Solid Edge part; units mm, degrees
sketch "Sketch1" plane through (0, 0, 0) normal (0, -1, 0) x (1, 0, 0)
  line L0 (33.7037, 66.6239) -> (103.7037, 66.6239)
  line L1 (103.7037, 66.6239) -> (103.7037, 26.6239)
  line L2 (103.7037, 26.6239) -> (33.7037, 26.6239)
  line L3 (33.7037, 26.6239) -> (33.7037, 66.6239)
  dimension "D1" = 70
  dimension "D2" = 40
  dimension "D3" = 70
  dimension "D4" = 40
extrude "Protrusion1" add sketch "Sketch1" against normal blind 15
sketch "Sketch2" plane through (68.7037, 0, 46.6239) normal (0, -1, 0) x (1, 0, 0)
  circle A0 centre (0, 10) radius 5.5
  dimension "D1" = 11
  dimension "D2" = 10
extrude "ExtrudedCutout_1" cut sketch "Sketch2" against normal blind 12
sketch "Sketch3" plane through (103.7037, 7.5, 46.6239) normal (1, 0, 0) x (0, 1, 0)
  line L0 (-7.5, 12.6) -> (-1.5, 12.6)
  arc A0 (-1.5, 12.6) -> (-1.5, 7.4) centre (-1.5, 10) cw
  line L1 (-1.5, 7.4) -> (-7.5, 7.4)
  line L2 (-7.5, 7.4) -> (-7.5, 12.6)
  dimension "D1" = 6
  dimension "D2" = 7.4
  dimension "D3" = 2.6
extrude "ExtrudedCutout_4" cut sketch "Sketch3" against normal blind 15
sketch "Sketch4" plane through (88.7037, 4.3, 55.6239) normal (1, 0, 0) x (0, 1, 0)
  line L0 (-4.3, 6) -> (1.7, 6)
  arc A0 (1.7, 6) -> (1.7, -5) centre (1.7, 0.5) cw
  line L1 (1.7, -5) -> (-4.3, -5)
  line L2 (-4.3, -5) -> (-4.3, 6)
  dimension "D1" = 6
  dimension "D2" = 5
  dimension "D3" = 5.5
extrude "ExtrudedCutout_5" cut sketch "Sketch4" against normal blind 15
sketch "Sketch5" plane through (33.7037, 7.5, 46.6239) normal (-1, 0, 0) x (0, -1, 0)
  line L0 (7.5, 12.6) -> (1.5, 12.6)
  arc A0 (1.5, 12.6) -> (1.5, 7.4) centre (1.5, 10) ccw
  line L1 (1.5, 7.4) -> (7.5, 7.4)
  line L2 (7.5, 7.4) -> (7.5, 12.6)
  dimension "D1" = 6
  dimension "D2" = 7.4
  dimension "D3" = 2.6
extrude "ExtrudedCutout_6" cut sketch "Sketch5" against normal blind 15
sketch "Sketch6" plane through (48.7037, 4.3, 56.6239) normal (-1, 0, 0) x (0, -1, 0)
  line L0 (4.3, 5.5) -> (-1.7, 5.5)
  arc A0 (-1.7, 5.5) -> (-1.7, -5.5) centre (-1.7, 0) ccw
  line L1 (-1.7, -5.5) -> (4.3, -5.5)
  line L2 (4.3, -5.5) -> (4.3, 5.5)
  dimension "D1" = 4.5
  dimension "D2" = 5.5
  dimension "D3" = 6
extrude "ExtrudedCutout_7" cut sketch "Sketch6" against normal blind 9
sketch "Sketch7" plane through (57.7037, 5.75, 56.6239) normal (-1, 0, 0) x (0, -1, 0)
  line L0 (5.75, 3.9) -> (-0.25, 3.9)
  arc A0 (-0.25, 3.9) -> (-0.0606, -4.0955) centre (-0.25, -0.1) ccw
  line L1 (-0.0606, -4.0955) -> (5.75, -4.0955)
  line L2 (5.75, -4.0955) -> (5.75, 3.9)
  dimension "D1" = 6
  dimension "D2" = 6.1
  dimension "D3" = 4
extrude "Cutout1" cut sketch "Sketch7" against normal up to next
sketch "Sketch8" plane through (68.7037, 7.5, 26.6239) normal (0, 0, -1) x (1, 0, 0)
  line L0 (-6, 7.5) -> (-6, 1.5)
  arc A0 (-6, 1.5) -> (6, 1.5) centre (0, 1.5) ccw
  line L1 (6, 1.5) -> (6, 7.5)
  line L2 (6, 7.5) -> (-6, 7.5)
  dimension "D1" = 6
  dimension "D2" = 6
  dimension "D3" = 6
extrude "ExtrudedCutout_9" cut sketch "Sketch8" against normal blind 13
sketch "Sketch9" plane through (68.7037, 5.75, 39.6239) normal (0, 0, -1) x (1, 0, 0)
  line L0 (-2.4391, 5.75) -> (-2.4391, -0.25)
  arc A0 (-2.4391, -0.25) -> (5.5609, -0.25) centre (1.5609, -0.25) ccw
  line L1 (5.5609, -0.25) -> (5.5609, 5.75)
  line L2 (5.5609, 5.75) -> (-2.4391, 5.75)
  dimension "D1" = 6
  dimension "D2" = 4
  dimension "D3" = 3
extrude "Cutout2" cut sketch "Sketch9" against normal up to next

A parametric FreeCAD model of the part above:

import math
import FreeCAD as App
import Part
import Sketcher
from FreeCAD import Vector
Q = App.Units.Quantity

doc = App.newDocument("Part")
body = doc.addObject("PartDesign::Body", "Body")

# Sketch on XZ plane
sketch1 = body.newObject("Sketcher::SketchObject", "Sketch")
sketch1.AttachmentSupport = (doc.getObject("XZ_Plane"), [""])
sketch1.MapMode = "FlatFace"
sketch1.addGeometry([
    Part.LineSegment(Vector(104, 67, 0), Vector(34, 67, 0)),
    Part.LineSegment(Vector(34, 67, 0), Vector(34, 27, 0)),
    Part.LineSegment(Vector(34, 27, 0), Vector(104, 27, 0)),
    Part.LineSegment(Vector(104, 27, 0), Vector(104, 67, 0)),
], False)
sketch1.addConstraint([
    Sketcher.Constraint("Coincident", 0, 2, 1, 1),
    Sketcher.Constraint("Coincident", 1, 2, 2, 1),
    Sketcher.Constraint("Coincident", 2, 2, 3, 1),
    Sketcher.Constraint("Coincident", 3, 2, 0, 1),
    Sketcher.Constraint("Horizontal", 0),
    Sketcher.Constraint("Vertical", 1),
    Sketcher.Constraint("Horizontal", 2),
    Sketcher.Constraint("Vertical", 3),
    Sketcher.Constraint("DistanceX", 0, 2, 0, 1, Q("70 mm")),
    Sketcher.Constraint("DistanceY", 1, 2, 1, 1, Q("40 mm")),
    Sketcher.Constraint("DistanceX", -1, 1, 0, 2, Q("33.7037 mm")),
    Sketcher.Constraint("DistanceY", -1, 1, 0, 2, Q("66.624 mm")),
])
pad1 = body.newObject("PartDesign::Pad", "Pad")
pad1.Profile = sketch1
pad1.Length = 15
pad1.Reversed = True

# Sketch on XZ plane
sketch2 = body.newObject("Sketcher::SketchObject", "Sketch001")
sketch2.AttachmentSupport = (doc.getObject("XZ_Plane"), [""])
sketch2.MapMode = "FlatFace"
sketch2.addGeometry(Part.Circle(Vector(69, 57, 0), Vector(0, 0, 1), 6), False)
sketch2.addConstraint([
    Sketcher.Constraint("Diameter", 0, Q("11 mm")),
    Sketcher.Constraint("DistanceY", -1, 1, 0, 3, Q("56.624 mm")),
    Sketcher.Constraint("DistanceX", -1, 1, 0, 3, Q("68.7037 mm")),
])
pocket1 = body.newObject("PartDesign::Pocket", "Pocket")
pocket1.Profile = sketch2
pocket1.Length = 12

# Sketch on YZ plane
sketch3 = body.newObject("Sketcher::SketchObject", "Sketch002")
sketch3.AttachmentSupport = (doc.getObject("YZ_Plane"), [""])
sketch3.MapMode = "FlatFace"
sketch3.AttachmentOffset = App.Placement(Vector(0, 0, 103.7037), App.Rotation())
sketch3.addGeometry([
    Part.LineSegment(Vector(6, 59.2, 0), Vector(0, 59.2, 0)),
    Part.LineSegment(Vector(0, 59.2, 0), Vector(0, 54, 0)),
    Part.LineSegment(Vector(0, 54, 0), Vector(6, 54, 0)),
    Part.ArcOfCircle(Part.Circle(Vector(6, 56.6, 0), Vector(0, 0, 1), 2.6), math.radians(-90), math.radians(90)),
], False)
sketch3.addConstraint([
    Sketcher.Constraint("Coincident", 0, 2, 1, 1),
    Sketcher.Constraint("Coincident", 1, 2, 2, 1),
    Sketcher.Constraint("Tangent", 2, 2, 3, 1),
    Sketcher.Constraint("Tangent", 3, 2, 0, 1),
    Sketcher.Constraint("Horizontal", 0),
    Sketcher.Constraint("Vertical", 1),
    Sketcher.Constraint("Horizontal", 2),
    Sketcher.Constraint("PointOnObject", 0, 2, -2),
    Sketcher.Constraint("Radius", 3, Q("2.6 mm")),
    Sketcher.Constraint("DistanceX", 0, 2, 0, 1, Q("6 mm")),
    Sketcher.Constraint("DistanceY", -1, 1, 3, 3, Q("56.624 mm")),
])
pocket2 = body.newObject("PartDesign::Pocket", "Pocket001")
pocket2.Profile = sketch3
pocket2.Length = 15

# Sketch on YZ plane
sketch4 = body.newObject("Sketcher::SketchObject", "Sketch003")
sketch4.AttachmentSupport = (doc.getObject("YZ_Plane"), [""])
sketch4.MapMode = "FlatFace"
sketch4.AttachmentOffset = App.Placement(Vector(0, 0, 88.7037), App.Rotation())
sketch4.addGeometry([
    Part.LineSegment(Vector(6, 62, 0), Vector(0, 62, 0)),
    Part.LineSegment(Vector(0, 62, 0), Vector(0, 51, 0)),
    Part.LineSegment(Vector(0, 51, 0), Vector(6, 51, 0)),
    Part.ArcOfCircle(Part.Circle(Vector(6, 56, 0), Vector(0, 0, 1), 6), math.radians(-90), math.radians(90)),
], False)
sketch4.addConstraint([
    Sketcher.Constraint("Coincident", 0, 2, 1, 1),
    Sketcher.Constraint("Coincident", 1, 2, 2, 1),
    Sketcher.Constraint("Tangent", 2, 2, 3, 1),
    Sketcher.Constraint("Tangent", 3, 2, 0, 1),
    Sketcher.Constraint("Horizontal", 0),
    Sketcher.Constraint("Vertical", 1),
    Sketcher.Constraint("Horizontal", 2),
    Sketcher.Constraint("PointOnObject", 0, 2, -2),
    Sketcher.Constraint("Radius", 3, Q("5.5 mm")),
    Sketcher.Constraint("DistanceX", 0, 2, 0, 1, Q("6 mm")),
    Sketcher.Constraint("DistanceY", -1, 1, 3, 3, Q("56.124 mm")),
])
pocket3 = body.newObject("PartDesign::Pocket", "Pocket002")
pocket3.Profile = sketch4
pocket3.Length = 15

# Sketch on YZ plane
sketch5 = body.newObject("Sketcher::SketchObject", "Sketch004")
sketch5.AttachmentSupport = (doc.getObject("YZ_Plane"), [""])
sketch5.MapMode = "FlatFace"
sketch5.AttachmentOffset = App.Placement(Vector(0, 0, 33.7037), App.Rotation())
sketch5.addGeometry([
    Part.LineSegment(Vector(0, 54, 0), Vector(0, 59.2, 0)),
    Part.LineSegment(Vector(0, 59.2, 0), Vector(6, 59.2, 0)),
    Part.ArcOfCircle(Part.Circle(Vector(6, 56.6, 0), Vector(0, 0, 1), 2.6), math.radians(-90), math.radians(90)),
    Part.LineSegment(Vector(6, 54, 0), Vector(0, 54, 0)),
], False)
sketch5.addConstraint([
    Sketcher.Constraint("Coincident", 0, 2, 1, 1),
    Sketcher.Constraint("Tangent", 1, 2, 2, 2),
    Sketcher.Constraint("Tangent", 2, 1, 3, 1),
    Sketcher.Constraint("Coincident", 3, 2, 0, 1),
    Sketcher.Constraint("Vertical", 0),
    Sketcher.Constraint("Horizontal", 1),
    Sketcher.Constraint("Horizontal", 3),
    Sketcher.Constraint("PointOnObject", 0, 2, -2),
    Sketcher.Constraint("Radius", 2, Q("2.6 mm")),
    Sketcher.Constraint("DistanceX", 1, 1, 1, 2, Q("6 mm")),
    Sketcher.Constraint("DistanceY", -1, 1, 2, 3, Q("56.624 mm")),
])
pocket4 = body.newObject("PartDesign::Pocket", "Pocket003")
pocket4.Profile = sketch5
pocket4.Length = 15
pocket4.Reversed = True

# Sketch on YZ plane
sketch6 = body.newObject("Sketcher::SketchObject", "Sketch005")
sketch6.AttachmentSupport = (doc.getObject("YZ_Plane"), [""])
sketch6.MapMode = "FlatFace"
sketch6.AttachmentOffset = App.Placement(Vector(0, 0, 48.7037), App.Rotation())
sketch6.addGeometry([
    Part.LineSegment(Vector(0, 51, 0), Vector(0, 62, 0)),
    Part.LineSegment(Vector(0, 62, 0), Vector(6, 62, 0)),
    Part.ArcOfCircle(Part.Circle(Vector(6, 57, 0), Vector(0, 0, 1), 6), math.radians(-90), math.radians(90)),
    Part.LineSegment(Vector(6, 51, 0), Vector(0, 51, 0)),
], False)
sketch6.addConstraint([
    Sketcher.Constraint("Coincident", 0, 2, 1, 1),
    Sketcher.Constraint("Tangent", 1, 2, 2, 2),
    Sketcher.Constraint("Tangent", 2, 1, 3, 1),
    Sketcher.Constraint("Coincident", 3, 2, 0, 1),
    Sketcher.Constraint("Vertical", 0),
    Sketcher.Constraint("Horizontal", 1),
    Sketcher.Constraint("Horizontal", 3),
    Sketcher.Constraint("PointOnObject", 0, 2, -2),
    Sketcher.Constraint("Radius", 2, Q("5.5 mm")),
    Sketcher.Constraint("DistanceX", 1, 1, 1, 2, Q("6 mm")),
    Sketcher.Constraint("DistanceY", -1, 1, 2, 3, Q("56.624 mm")),
])
pocket5 = body.newObject("PartDesign::Pocket", "Pocket004")
pocket5.Profile = sketch6
pocket5.Length = 9
pocket5.Reversed = True

# Sketch on YZ plane
sketch7 = body.newObject("Sketcher::SketchObject", "Sketch006")
sketch7.AttachmentSupport = (doc.getObject("YZ_Plane"), [""])
sketch7.MapMode = "FlatFace"
sketch7.AttachmentOffset = App.Placement(Vector(0, 0, 57.7037), App.Rotation())
sketch7.addGeometry([
    Part.LineSegment(Vector(0, 52.5, 0), Vector(0, 60.5, 0)),
    Part.LineSegment(Vector(0, 60.5, 0), Vector(6, 60.5, 0)),
    Part.ArcOfCircle(Part.Circle(Vector(6, 56.5, 0), Vector(0, 0, 1), 4), math.radians(-93), math.radians(90)),
    Part.LineSegment(Vector(5.8, 52.5, 0), Vector(0, 52.5, 0)),
], False)
sketch7.addConstraint([
    Sketcher.Constraint("Coincident", 0, 2, 1, 1),
    Sketcher.Constraint("Tangent", 1, 2, 2, 2),
    Sketcher.Constraint("Coincident", 2, 1, 3, 1),
    Sketcher.Constraint("Coincident", 3, 2, 0, 1),
    Sketcher.Constraint("Vertical", 0),
    Sketcher.Constraint("Horizontal", 1),
    Sketcher.Constraint("Horizontal", 3),
    Sketcher.Constraint("PointOnObject", 0, 2, -2),
    Sketcher.Constraint("Radius", 2, Q("4 mm")),
    Sketcher.Constraint("DistanceX", 1, 1, 1, 2, Q("6 mm")),
    Sketcher.Constraint("DistanceX", 3, 2, 3, 1, Q("5.8106 mm")),
    Sketcher.Constraint("DistanceY", -1, 1, 2, 3, Q("56.524 mm")),
])
pocket6 = body.newObject("PartDesign::Pocket", "Pocket005")
pocket6.Profile = sketch7
pocket6.Type = "UpToFirst"
pocket6.Reversed = True

# Sketch on XY plane
sketch8 = body.newObject("Sketcher::SketchObject", "Sketch007")
sketch8.AttachmentSupport = (doc.getObject("XY_Plane"), [""])
sketch8.MapMode = "FlatFace"
sketch8.AttachmentOffset = App.Placement(Vector(0, 0, 26.6239), App.Rotation())
sketch8.addGeometry([
    Part.LineSegment(Vector(75, 0, 0), Vector(63, 0, 0)),
    Part.LineSegment(Vector(63, 0, 0), Vector(63, 6, 0)),
    Part.ArcOfCircle(Part.Circle(Vector(69, 6, 0), Vector(0, 0, 1), 6), math.radians(0), math.radians(180)),
    Part.LineSegment(Vector(75, 6, 0), Vector(75, 0, 0)),
], False)
sketch8.addConstraint([
    Sketcher.Constraint("Coincident", 0, 2, 1, 1),
    Sketcher.Constraint("Tangent", 1, 2, 2, 2),
    Sketcher.Constraint("Tangent", 2, 1, 3, 1),
    Sketcher.Constraint("Coincident", 3, 2, 0, 1),
    Sketcher.Constraint("Horizontal", 0),
    Sketcher.Constraint("Vertical", 1),
    Sketcher.Constraint("Vertical", 3),
    Sketcher.Constraint("PointOnObject", 0, 2, -1),
    Sketcher.Constraint("Radius", 2, Q("6 mm")),
    Sketcher.Constraint("DistanceY", 1, 1, 1, 2, Q("6 mm")),
    Sketcher.Constraint("DistanceX", -1, 1, 2, 3, Q("68.7037 mm")),
])
pocket7 = body.newObject("PartDesign::Pocket", "Pocket006")
pocket7.Profile = sketch8
pocket7.Length = 13
pocket7.Reversed = True

# Sketch on XY plane
sketch9 = body.newObject("Sketcher::SketchObject", "Sketch008")
sketch9.AttachmentSupport = (doc.getObject("XY_Plane"), [""])
sketch9.MapMode = "FlatFace"
sketch9.AttachmentOffset = App.Placement(Vector(0, 0, 39.6239), App.Rotation())
sketch9.addGeometry([
    Part.LineSegment(Vector(74.3, 0, 0), Vector(66.3, 0, 0)),
    Part.LineSegment(Vector(66.3, 0, 0), Vector(66.3, 6, 0)),
    Part.ArcOfCircle(Part.Circle(Vector(70.3, 6, 0), Vector(0, 0, 1), 4), math.radians(0), math.radians(180)),
    Part.LineSegment(Vector(74.3, 6, 0), Vector(74.3, 0, 0)),
], False)
sketch9.addConstraint([
    Sketcher.Constraint("Coincident", 0, 2, 1, 1),
    Sketcher.Constraint("Tangent", 1, 2, 2, 2),
    Sketcher.Constraint("Tangent", 2, 1, 3, 1),
    Sketcher.Constraint("Coincident", 3, 2, 0, 1),
    Sketcher.Constraint("Horizontal", 0),
    Sketcher.Constraint("Vertical", 1),
    Sketcher.Constraint("Vertical", 3),
    Sketcher.Constraint("PointOnObject", 0, 2, -1),
    Sketcher.Constraint("Radius", 2, Q("4 mm")),
    Sketcher.Constraint("DistanceY", 1, 1, 1, 2, Q("6 mm")),
    Sketcher.Constraint("DistanceX", -1, 1, 2, 3, Q("70.2646 mm")),
])
pocket8 = body.newObject("PartDesign::Pocket", "Pocket007")
pocket8.Profile = sketch9
pocket8.Length = 14.7087
pocket8.Reversed = True

doc.recompute()
